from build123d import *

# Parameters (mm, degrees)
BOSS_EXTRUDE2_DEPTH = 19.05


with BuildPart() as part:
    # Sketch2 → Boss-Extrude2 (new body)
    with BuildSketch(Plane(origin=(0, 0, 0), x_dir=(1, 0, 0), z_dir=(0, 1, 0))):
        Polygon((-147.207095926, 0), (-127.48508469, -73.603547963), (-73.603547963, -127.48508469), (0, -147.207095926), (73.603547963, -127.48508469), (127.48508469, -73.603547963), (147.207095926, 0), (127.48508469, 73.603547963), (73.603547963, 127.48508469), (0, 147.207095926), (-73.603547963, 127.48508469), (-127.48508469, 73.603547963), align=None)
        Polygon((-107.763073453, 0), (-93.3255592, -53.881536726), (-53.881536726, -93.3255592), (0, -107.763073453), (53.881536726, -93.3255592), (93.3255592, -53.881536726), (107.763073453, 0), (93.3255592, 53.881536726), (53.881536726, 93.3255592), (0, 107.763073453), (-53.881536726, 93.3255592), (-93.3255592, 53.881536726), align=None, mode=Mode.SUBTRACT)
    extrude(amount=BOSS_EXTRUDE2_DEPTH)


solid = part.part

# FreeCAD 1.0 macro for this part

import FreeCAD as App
import Part
import Sketcher
from FreeCAD import Vector
Q = App.Units.Quantity

doc = App.newDocument("Part")
params = doc.addObject("Spreadsheet::Sheet", "Params")
for row, (alias, value) in enumerate([
    ("sketch1_length", "3 in"),
    ("pad1_length", "0.75 in"),
], start=1):
    params.set(f"A{row}", alias)
    params.set(f"B{row}", "=" + value)
    params.setAlias(f"B{row}", alias)

body = doc.addObject("PartDesign::Body", "Body")

# Sketch on XZ plane
sketch1 = body.newObject("Sketcher::SketchObject", "Sketch")
sketch1.AttachmentSupport = (doc.getObject("XZ_Plane"), [""])
sketch1.MapMode = "FlatFace"
sketch1.addGeometry([
    Part.LineSegment(Vector(-147, 0, 0), Vector(-127, 74, 0)),  # 0
    Part.LineSegment(Vector(-127, 74, 0), Vector(-74, 127, 0)),  # 1
    Part.LineSegment(Vector(-74, 127, 0), Vector(0, 147, 0)),  # 2
    Part.LineSegment(Vector(0, 147, 0), Vector(74, 127, 0)),  # 3
    Part.LineSegment(Vector(74, 127, 0), Vector(127, 74, 0)),  # 4
    Part.LineSegment(Vector(127, 74, 0), Vector(147, 0, 0)),  # 5
    Part.LineSegment(Vector(147, 0, 0), Vector(127, -74, 0)),  # 6
    Part.LineSegment(Vector(127, -74, 0), Vector(74, -127, 0)),  # 7
    Part.LineSegment(Vector(74, -127, 0), Vector(0, -147, 0)),  # 8
    Part.LineSegment(Vector(0, -147, 0), Vector(-74, -127, 0)),  # 9
    Part.LineSegment(Vector(-74, -127, 0), Vector(-127, -74, 0)),  # 10
    Part.LineSegment(Vector(-127, -74, 0), Vector(-147, 0, 0)),  # 11
    Part.LineSegment(Vector(-93, 54, 0), Vector(-108, 0, 0)),  # 12
    Part.LineSegment(Vector(-108, 0, 0), Vector(-93, -54, 0)),  # 13
    Part.LineSegment(Vector(-93, -54, 0), Vector(-54, -93, 0)),  # 14
    Part.LineSegment(Vector(-54, -93, 0), Vector(0, -108, 0)),  # 15
    Part.LineSegment(Vector(0, -108, 0), Vector(54, -93, 0)),  # 16
    Part.LineSegment(Vector(54, -93, 0), Vector(93, -54, 0)),  # 17
    Part.LineSegment(Vector(93, -54, 0), Vector(108, 0, 0)),  # 18
    Part.LineSegment(Vector(108, 0, 0), Vector(93, 54, 0)),  # 19
    Part.LineSegment(Vector(93, 54, 0), Vector(54, 93, 0)),  # 20
    Part.LineSegment(Vector(54, 93, 0), Vector(0, 108, 0)),  # 21
    Part.LineSegment(Vector(0, 108, 0), Vector(-54, 93, 0)),  # 22
    Part.LineSegment(Vector(-54, 93, 0), Vector(-93, 54, 0)),  # 23
], False)
sketch1.addConstraint([
    Sketcher.Constraint("Coincident", 0, 2, 1, 1),
    Sketcher.Constraint("Coincident", 1, 2, 2, 1),
    Sketcher.Constraint("Coincident", 2, 2, 3, 1),
    Sketcher.Constraint("Coincident", 3, 2, 4, 1),
    Sketcher.Constraint("Coincident", 4, 2, 5, 1),
    Sketcher.Constraint("Coincident", 5, 2, 6, 1),
    Sketcher.Constraint("Coincident", 6, 2, 7, 1),
    Sketcher.Constraint("Coincident", 7, 2, 8, 1),
    Sketcher.Constraint("Coincident", 8, 2, 9, 1),
    Sketcher.Constraint("Coincident", 9, 2, 10, 1),
    Sketcher.Constraint("Coincident", 10, 2, 11, 1),
    Sketcher.Constraint("Coincident", 11, 2, 0, 1),
    Sketcher.Constraint("Coincident", 12, 2, 13, 1),
    Sketcher.Constraint("Coincident", 13, 2, 14, 1),
    Sketcher.Constraint("Coincident", 14, 2, 15, 1),
    Sketcher.Constraint("Coincident", 15, 2, 16, 1),
    Sketcher.Constraint("Coincident", 16, 2, 17, 1),
    Sketcher.Constraint("Coincident", 17, 2, 18, 1),
    Sketcher.Constraint("Coincident", 18, 2, 19, 1),
    Sketcher.Constraint("Coincident", 19, 2, 20, 1),
    Sketcher.Constraint("Coincident", 20, 2, 21, 1),
    Sketcher.Constraint("Coincident", 21, 2, 22, 1),
    Sketcher.Constraint("Coincident", 22, 2, 23, 1),
    Sketcher.Constraint("Coincident", 23, 2, 12, 1),
    Sketcher.Constraint("Symmetric", 0, 2, 6, 2, -1, 1),
    Sketcher.Constraint("Symmetric", 1, 2, 7, 2, -1, 1),
    Sketcher.Constraint("Symmetric", 2, 2, 8, 2, -1, 1),
    Sketcher.Constraint("Symmetric", 3, 2, 9, 2, -1, 1),
    Sketcher.Constraint("Symmetric", 4, 2, 10, 2, -1, 1),
    Sketcher.Constraint("Symmetric", 5, 2, 11, 2, -1, 1),
    Sketcher.Constraint("Symmetric", 12, 2, 18, 2, -1, 1),
    Sketcher.Constraint("Symmetric", 13, 2, 19, 2, -1, 1),
    Sketcher.Constraint("Symmetric", 14, 2, 20, 2, -1, 1),
    Sketcher.Constraint("Symmetric", 15, 2, 21, 2, -1, 1),
    Sketcher.Constraint("Symmetric", 16, 2, 22, 2, -1, 1),
    Sketcher.Constraint("Symmetric", 17, 2, 23, 2, -1, 1),
    Sketcher.Constraint("Symmetric", 1, 2, 3, 2, -2),
    Sketcher.Constraint("Symmetric", 0, 2, 4, 2, -2),
    Sketcher.Constraint("Symmetric", 14, 2, 16, 2, -2),
    Sketcher.Constraint("Symmetric", 13, 2, 17, 2, -2),
    Sketcher.Constraint("PointOnObject", 2, 2, -2),
    Sketcher.Constraint("PointOnObject", 5, 2, -1),
    Sketcher.Constraint("PointOnObject", 12, 2, -1),
    Sketcher.Constraint("PointOnObject", 15, 2, -2),
    Sketcher.Constraint("Perpendicular", 0, 3),
    Sketcher.Constraint("Perpendicular", 1, 4),
    Sketcher.Constraint("Perpendicular", 9, 12),
    Sketcher.Constraint("Parallel", 10, 14),
    Sketcher.Constraint("Perpendicular", 12, 15),
    Sketcher.Constraint("Equal", 0, 1),
    Sketcher.Constraint("Equal", 1, 2),
    Sketcher.Constraint("Equal", 13, 14),
    Sketcher.Constraint("Equal", 14, 15),
    Sketcher.Constraint("Distance", 0, Q("3 in")),
    Sketcher.Constraint("Angle", 0, Q("75 deg")),
    Sketcher.Constraint("Distance", 12, 55.782272),
])
sketch1.setExpression("Constraints[53]", "Params.sketch1_length")
pad1 = body.newObject("PartDesign::Pad", "Pad")
pad1.Profile = sketch1
pad1.setExpression("Length", "Params.pad1_length")
pad1.Reversed = True

doc.recompute()
